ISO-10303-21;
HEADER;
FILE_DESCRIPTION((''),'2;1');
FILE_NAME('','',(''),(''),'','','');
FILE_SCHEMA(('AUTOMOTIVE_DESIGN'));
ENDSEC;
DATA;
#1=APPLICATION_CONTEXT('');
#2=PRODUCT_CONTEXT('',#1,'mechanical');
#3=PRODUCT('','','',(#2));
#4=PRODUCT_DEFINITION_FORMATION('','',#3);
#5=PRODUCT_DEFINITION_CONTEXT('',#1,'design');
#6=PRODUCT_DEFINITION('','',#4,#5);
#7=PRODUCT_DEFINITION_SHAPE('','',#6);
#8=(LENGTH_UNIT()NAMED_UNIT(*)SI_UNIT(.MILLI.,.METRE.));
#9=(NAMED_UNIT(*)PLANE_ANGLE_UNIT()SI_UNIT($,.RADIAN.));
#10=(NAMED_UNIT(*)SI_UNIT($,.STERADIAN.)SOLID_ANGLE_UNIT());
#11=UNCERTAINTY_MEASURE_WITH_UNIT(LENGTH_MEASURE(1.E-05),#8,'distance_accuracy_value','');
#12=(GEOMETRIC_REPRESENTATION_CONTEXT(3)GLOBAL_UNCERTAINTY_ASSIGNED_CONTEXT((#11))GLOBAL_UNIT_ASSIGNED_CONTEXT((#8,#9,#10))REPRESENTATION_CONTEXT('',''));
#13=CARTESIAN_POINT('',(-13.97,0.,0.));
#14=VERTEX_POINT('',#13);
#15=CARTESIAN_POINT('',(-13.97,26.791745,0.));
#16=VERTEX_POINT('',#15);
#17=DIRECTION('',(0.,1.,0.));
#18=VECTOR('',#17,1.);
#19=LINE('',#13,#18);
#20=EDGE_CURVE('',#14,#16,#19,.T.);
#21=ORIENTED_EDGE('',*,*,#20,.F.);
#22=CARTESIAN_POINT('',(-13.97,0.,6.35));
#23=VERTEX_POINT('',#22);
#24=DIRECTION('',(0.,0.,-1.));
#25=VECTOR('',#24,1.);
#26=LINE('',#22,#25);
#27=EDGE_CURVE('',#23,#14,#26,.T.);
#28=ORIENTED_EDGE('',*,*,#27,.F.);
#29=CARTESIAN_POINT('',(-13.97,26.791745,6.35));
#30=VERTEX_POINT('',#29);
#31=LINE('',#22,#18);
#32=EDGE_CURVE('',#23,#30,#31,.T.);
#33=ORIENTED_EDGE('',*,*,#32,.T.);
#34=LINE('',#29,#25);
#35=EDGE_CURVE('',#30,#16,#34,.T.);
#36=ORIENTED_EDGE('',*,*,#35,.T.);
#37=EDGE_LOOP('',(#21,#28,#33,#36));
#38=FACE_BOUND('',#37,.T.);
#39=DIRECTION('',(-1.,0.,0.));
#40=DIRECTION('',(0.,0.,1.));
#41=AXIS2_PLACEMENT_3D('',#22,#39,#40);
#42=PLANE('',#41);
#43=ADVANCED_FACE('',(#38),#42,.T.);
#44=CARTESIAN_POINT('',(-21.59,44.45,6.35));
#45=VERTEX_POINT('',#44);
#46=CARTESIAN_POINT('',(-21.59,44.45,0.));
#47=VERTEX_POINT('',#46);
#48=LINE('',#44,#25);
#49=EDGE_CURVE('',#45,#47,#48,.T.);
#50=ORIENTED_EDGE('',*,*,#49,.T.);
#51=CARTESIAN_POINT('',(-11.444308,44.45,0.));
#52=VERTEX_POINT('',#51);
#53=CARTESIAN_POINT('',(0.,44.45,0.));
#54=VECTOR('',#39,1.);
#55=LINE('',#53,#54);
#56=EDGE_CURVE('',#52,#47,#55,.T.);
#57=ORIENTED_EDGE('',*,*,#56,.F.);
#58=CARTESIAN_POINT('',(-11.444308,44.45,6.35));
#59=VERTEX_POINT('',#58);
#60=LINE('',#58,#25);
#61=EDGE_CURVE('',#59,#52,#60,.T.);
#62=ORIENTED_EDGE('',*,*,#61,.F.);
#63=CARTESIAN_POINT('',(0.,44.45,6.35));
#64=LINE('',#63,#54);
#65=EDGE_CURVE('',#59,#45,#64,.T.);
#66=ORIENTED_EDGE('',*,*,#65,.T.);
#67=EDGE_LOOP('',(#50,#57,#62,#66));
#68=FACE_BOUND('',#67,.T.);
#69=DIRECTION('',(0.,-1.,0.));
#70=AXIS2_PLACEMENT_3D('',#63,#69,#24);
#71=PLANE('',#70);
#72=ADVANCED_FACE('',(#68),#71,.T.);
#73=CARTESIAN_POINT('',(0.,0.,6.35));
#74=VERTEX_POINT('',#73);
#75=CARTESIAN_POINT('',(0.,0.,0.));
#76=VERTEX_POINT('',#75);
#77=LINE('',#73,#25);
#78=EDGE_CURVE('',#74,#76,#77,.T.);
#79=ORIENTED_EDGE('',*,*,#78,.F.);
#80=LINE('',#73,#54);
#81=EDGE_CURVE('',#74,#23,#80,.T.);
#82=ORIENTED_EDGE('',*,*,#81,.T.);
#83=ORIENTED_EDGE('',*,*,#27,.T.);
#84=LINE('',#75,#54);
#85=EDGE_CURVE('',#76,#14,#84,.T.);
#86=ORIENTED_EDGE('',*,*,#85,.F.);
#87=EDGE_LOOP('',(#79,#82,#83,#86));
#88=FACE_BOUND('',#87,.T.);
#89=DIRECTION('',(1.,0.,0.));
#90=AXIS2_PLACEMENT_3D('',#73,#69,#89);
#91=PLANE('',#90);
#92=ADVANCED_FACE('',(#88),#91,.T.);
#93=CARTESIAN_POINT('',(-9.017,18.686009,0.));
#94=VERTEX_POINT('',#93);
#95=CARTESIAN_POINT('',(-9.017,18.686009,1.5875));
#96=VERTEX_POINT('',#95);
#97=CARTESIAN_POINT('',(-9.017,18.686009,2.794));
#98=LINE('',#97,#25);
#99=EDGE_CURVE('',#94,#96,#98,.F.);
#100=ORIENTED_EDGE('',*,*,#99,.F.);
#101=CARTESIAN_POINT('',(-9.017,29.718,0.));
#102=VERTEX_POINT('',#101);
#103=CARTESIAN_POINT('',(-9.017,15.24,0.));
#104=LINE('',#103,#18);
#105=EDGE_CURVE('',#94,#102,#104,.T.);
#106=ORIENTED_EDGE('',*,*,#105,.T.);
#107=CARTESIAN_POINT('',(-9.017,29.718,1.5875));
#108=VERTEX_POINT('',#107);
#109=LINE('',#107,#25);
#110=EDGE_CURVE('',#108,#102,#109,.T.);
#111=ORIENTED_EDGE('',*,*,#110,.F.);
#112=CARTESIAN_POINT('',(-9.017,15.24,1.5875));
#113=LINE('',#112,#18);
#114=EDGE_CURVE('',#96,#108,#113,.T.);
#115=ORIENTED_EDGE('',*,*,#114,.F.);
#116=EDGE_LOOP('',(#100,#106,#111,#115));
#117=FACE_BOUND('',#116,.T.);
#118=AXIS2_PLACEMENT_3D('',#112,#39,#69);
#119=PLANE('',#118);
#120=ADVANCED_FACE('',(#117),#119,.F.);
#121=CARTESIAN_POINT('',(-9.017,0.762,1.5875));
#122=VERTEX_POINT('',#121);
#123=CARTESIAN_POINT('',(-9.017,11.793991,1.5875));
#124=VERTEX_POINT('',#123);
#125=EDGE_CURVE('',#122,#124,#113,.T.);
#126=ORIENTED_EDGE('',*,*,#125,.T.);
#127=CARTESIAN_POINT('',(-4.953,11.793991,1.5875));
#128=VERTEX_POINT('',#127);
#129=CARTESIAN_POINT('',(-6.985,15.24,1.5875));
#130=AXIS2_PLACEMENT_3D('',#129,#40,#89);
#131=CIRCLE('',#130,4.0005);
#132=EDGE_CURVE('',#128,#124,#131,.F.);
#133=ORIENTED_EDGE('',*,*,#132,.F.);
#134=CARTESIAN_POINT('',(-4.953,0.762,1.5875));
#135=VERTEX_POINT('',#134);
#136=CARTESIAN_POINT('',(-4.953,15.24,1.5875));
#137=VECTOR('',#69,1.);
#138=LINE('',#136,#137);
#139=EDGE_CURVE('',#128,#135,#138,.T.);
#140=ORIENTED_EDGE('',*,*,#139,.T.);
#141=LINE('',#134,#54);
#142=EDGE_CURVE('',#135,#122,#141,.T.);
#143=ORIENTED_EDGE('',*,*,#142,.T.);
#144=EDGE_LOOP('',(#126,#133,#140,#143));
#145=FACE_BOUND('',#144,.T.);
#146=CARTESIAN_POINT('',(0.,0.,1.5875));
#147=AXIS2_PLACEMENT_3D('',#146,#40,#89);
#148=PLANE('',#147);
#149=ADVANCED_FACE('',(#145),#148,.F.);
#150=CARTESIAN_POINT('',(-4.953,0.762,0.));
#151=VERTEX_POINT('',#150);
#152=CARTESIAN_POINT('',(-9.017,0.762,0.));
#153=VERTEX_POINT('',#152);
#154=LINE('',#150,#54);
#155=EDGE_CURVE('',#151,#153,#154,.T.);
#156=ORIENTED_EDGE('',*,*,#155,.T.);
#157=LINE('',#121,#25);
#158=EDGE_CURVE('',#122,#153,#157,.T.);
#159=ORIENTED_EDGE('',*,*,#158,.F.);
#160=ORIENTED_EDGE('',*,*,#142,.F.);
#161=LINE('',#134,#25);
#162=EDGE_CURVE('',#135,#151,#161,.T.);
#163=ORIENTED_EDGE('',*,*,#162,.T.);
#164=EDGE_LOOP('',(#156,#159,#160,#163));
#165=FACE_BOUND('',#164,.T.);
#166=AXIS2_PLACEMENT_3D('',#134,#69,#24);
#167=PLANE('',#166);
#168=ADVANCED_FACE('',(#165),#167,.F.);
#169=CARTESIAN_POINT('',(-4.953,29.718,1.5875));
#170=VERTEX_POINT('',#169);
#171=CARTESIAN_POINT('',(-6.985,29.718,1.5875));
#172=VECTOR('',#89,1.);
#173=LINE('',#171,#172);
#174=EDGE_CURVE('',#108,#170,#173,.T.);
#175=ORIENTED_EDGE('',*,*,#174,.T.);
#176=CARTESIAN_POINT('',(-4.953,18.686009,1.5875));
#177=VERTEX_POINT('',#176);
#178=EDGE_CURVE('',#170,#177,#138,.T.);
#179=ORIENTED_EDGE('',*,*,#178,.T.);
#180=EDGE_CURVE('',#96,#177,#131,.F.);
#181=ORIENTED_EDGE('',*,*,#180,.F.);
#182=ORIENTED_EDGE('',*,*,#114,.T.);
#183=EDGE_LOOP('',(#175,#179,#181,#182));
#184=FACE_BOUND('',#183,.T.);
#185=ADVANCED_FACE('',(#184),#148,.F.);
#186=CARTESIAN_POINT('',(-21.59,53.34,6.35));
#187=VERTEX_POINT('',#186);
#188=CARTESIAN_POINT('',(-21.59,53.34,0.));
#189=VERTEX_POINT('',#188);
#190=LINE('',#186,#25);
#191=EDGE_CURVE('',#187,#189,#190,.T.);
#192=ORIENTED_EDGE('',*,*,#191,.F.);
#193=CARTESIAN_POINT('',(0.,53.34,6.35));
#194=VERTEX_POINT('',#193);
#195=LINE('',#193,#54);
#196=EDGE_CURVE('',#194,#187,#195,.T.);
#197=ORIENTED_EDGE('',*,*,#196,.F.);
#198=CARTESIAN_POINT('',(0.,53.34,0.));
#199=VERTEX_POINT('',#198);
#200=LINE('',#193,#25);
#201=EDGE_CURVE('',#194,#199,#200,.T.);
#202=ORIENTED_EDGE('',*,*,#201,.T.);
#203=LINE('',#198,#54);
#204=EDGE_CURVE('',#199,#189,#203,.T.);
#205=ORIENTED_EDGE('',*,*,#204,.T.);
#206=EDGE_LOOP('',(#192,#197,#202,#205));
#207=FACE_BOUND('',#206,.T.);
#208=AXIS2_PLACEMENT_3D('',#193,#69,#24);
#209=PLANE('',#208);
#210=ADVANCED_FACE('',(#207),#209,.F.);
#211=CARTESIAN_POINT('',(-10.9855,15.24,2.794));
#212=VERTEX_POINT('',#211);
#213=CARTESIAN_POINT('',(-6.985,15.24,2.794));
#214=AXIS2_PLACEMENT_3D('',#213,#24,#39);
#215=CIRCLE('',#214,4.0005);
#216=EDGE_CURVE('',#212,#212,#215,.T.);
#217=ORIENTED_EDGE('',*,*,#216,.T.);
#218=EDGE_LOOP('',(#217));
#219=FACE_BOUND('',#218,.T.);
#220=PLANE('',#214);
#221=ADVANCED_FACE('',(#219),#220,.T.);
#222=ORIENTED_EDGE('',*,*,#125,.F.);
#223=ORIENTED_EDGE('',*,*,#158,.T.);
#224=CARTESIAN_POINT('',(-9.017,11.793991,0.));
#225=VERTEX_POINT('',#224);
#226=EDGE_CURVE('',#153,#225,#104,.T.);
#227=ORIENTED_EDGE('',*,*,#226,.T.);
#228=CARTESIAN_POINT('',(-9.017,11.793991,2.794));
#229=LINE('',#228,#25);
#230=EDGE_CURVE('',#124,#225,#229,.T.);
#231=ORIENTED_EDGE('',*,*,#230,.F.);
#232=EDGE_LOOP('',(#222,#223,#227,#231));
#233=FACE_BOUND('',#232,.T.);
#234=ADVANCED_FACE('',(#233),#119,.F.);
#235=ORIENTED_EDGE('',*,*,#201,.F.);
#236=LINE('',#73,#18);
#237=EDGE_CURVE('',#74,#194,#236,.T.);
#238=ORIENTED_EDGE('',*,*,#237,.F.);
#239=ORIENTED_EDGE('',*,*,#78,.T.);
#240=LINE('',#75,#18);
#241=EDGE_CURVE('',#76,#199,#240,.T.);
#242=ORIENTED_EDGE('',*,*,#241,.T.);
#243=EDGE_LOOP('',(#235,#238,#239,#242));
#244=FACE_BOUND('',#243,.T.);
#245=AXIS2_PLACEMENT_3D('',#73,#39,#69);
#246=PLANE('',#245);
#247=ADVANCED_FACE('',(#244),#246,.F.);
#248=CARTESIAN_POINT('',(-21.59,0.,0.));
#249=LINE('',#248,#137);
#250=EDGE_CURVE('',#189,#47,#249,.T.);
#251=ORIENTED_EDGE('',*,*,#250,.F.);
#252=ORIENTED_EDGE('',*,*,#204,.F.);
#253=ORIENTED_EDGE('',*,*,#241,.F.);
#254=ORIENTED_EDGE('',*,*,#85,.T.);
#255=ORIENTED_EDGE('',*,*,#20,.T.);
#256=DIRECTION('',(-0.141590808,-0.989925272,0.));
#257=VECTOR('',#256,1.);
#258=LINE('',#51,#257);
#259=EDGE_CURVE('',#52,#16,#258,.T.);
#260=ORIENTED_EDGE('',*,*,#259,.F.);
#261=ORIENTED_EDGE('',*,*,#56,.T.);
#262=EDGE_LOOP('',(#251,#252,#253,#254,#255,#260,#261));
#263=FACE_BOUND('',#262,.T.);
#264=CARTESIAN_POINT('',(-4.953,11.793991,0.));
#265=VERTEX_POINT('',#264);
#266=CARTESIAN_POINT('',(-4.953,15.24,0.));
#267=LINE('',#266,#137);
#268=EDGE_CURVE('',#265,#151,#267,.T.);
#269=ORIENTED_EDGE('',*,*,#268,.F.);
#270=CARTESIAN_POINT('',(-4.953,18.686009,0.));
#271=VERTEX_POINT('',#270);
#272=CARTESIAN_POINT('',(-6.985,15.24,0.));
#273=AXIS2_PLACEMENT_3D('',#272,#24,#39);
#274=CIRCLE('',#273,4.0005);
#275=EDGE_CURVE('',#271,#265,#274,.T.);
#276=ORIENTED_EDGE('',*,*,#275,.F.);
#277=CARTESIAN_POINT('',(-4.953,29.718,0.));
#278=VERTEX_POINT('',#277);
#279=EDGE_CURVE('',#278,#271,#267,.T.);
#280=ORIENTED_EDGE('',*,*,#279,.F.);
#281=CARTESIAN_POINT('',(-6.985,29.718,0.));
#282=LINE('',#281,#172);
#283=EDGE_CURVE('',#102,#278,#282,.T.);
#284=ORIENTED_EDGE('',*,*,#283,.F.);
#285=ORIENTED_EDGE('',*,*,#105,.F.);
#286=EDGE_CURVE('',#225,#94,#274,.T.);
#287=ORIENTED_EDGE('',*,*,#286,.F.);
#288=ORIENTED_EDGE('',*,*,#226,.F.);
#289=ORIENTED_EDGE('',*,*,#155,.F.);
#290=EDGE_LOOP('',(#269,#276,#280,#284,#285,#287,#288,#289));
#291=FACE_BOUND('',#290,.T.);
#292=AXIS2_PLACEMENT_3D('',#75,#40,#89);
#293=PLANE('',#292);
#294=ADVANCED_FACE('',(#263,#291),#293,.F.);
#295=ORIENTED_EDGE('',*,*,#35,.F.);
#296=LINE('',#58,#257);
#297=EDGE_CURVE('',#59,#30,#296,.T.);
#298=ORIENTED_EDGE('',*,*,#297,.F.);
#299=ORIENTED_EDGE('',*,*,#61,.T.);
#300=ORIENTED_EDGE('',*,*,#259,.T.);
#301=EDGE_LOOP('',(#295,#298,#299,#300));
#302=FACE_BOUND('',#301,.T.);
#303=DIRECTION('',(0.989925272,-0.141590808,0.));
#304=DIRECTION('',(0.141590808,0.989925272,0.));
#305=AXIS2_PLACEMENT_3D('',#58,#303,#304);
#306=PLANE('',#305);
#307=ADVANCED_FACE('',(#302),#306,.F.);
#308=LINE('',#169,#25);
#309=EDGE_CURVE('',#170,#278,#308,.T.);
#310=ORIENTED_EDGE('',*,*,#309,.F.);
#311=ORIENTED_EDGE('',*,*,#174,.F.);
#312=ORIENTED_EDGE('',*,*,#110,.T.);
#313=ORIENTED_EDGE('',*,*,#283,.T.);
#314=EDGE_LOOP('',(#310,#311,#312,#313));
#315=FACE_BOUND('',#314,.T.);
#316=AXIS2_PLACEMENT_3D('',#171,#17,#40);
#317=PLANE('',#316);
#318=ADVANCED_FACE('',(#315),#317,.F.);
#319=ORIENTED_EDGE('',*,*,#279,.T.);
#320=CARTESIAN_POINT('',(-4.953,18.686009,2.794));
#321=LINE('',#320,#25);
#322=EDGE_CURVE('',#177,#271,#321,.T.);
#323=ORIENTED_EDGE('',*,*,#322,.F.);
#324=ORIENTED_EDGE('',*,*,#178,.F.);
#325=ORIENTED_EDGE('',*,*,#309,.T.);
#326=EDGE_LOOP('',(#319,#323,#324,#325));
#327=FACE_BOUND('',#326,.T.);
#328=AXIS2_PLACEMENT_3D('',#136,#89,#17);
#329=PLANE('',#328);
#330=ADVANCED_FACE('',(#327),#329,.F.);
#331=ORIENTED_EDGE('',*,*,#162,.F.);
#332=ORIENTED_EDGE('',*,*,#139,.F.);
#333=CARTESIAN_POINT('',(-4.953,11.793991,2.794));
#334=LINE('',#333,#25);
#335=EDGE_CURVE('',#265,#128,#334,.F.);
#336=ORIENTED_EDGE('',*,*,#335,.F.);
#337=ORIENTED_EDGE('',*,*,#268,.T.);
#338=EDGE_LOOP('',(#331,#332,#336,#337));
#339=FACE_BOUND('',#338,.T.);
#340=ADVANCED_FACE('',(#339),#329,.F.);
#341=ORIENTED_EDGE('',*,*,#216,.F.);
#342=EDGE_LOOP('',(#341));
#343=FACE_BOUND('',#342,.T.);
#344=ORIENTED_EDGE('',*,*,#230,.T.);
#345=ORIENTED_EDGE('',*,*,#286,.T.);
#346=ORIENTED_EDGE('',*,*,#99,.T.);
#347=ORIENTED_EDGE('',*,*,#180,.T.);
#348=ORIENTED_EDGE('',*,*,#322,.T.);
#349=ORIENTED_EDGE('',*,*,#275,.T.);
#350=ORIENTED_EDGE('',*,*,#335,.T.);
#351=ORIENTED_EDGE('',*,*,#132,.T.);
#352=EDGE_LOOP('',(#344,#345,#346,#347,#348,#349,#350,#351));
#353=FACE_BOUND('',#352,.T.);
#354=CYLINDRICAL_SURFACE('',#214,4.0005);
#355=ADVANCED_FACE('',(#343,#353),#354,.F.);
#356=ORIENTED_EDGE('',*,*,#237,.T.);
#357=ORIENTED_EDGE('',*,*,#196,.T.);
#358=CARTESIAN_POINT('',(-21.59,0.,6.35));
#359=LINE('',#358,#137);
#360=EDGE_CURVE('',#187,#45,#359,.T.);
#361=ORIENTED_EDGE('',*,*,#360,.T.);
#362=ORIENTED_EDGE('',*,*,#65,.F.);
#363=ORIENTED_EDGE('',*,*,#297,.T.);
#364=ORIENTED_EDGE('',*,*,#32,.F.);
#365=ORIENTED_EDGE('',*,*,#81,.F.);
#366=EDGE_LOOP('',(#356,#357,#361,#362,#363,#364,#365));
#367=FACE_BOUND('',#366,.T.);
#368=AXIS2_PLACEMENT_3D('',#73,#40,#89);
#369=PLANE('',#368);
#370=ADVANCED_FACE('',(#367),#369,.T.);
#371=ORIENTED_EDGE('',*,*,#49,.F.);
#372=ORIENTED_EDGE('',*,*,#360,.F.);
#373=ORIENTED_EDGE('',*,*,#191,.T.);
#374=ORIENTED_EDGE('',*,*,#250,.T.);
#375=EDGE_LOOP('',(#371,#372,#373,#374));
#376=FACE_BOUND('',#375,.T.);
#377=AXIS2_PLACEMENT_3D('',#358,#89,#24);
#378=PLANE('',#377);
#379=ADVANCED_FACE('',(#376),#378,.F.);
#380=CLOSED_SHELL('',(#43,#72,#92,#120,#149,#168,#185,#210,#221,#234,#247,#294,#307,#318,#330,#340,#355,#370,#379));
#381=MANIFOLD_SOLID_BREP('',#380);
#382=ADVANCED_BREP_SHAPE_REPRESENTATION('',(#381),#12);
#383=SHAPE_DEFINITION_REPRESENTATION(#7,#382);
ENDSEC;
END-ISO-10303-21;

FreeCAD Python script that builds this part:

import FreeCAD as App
import Part
import Sketcher
Q = App.Units.Quantity

doc = App.newDocument("Part")
body = doc.addObject("PartDesign::Body", "Body")

# Sketch on XY plane
sketch1 = body.newObject("Sketcher::SketchObject", "Sketch")
sketch1.AttachmentSupport = (doc.getObject("XY_Plane"), [""])
sketch1.MapMode = "FlatFace"
sketch1.addGeometry([
    Part.LineSegment(App.Vector(-21.59, 53.34, 0), App.Vector(-21.59, 44.45, 0)),  # 0
    Part.LineSegment(App.Vector(-21.59, 44.45, 0), App.Vector(-13.97, 44.45, 0)),  # 1
    Part.LineSegment(App.Vector(-13.97, 44.45, 0), App.Vector(-13.97, 0, 0)),  # 2
    Part.LineSegment(App.Vector(-13.97, 0, 0), App.Vector(0, 0, 0)),  # 3
    Part.LineSegment(App.Vector(0, 0, 0), App.Vector(0, 53.34, 0)),  # 4
    Part.LineSegment(App.Vector(0, 53.34, 0), App.Vector(-21.59, 53.34, 0)),  # 5
], False)
sketch1.addConstraint([
    Sketcher.Constraint("Coincident", 0, 2, 1, 1),
    Sketcher.Constraint("Coincident", 1, 2, 2, 1),
    Sketcher.Constraint("Coincident", 2, 2, 3, 1),
    Sketcher.Constraint("Coincident", 3, 2, 4, 1),
    Sketcher.Constraint("Coincident", 4, 2, 5, 1),
    Sketcher.Constraint("Coincident", 5, 2, 0, 1),
    Sketcher.Constraint("Vertical", 0),
    Sketcher.Constraint("Horizontal", 1),
    Sketcher.Constraint("Vertical", 2),
    Sketcher.Constraint("Horizontal", 3),
    Sketcher.Constraint("Vertical", 4),
    Sketcher.Constraint("Horizontal", 5),
    Sketcher.Constraint("Coincident", 3, 2, -1, 1),
    Sketcher.Constraint("DistanceX", 1, 1, 1, 2, Q("0.3 in")),
    Sketcher.Constraint("DistanceY", 4, 1, 4, 2, Q("2.1 in")),
    Sketcher.Constraint("DistanceX", 3, 1, 3, 2, Q("0.55 in")),
    Sketcher.Constraint("DistanceY", 0, 2, 0, 1, Q("0.35 in")),
])
pad1 = body.newObject("PartDesign::Pad", "Pad")
pad1.Profile = sketch1
pad1.Length = Q("0.25 in")

# Sketch on XY plane
sketch2 = body.newObject("Sketcher::SketchObject", "Sketch001")
sketch2.AttachmentSupport = (doc.getObject("XY_Plane"), [""])
sketch2.MapMode = "FlatFace"
sketch2.addGeometry(Part.Circle(App.Vector(-6.985, 15.24, 0), App.Vector(0, 0, 1), 4.0005), False)
sketch2.addConstraint([
    Sketcher.Constraint("Diameter", 0, Q("0.315 in")),
    Sketcher.Constraint("DistanceY", -1, 1, 0, 3, Q("0.6 in")),
    Sketcher.Constraint("DistanceX", 0, 3, -1, 1, Q("0.275 in")),
])
pocket1 = body.newObject("PartDesign::Pocket", "Pocket")
pocket1.Profile = sketch2
pocket1.Length = Q("0.11 in")
pocket1.Reversed = True

# Sketch on XY plane
sketch3 = body.newObject("Sketcher::SketchObject", "Sketch002")
sketch3.AttachmentSupport = (doc.getObject("XY_Plane"), [""])
sketch3.MapMode = "FlatFace"
sketch3.addGeometry([
    Part.LineSegment(App.Vector(-9.017, 29.718, 0), App.Vector(-4.953, 29.718, 0)),
    Part.LineSegment(App.Vector(-4.953, 29.718, 0), App.Vector(-4.953, 0.762, 0)),
    Part.LineSegment(App.Vector(-4.953, 0.762, 0), App.Vector(-9.017, 0.762, 0)),
    Part.LineSegment(App.Vector(-9.017, 0.762, 0), App.Vector(-9.017, 29.718, 0)),
], False)
sketch3.addConstraint([
    Sketcher.Constraint("Coincident", 0, 2, 1, 1),
    Sketcher.Constraint("Coincident", 1, 2, 2, 1),
    Sketcher.Constraint("Coincident", 2, 2, 3, 1),
    Sketcher.Constraint("Coincident", 3, 2, 0, 1),
    Sketcher.Constraint("Horizontal", 0),
    Sketcher.Constraint("Vertical", 1),
    Sketcher.Constraint("Horizontal", 2),
    Sketcher.Constraint("Vertical", 3),
    Sketcher.Constraint("DistanceX", 0, 1, 0, 2, Q("0.16 in")),
    Sketcher.Constraint("DistanceY", 1, 2, 1, 1, Q("1.14 in")),
    Sketcher.Constraint("DistanceY", -1, 1, 0, 2, Q("1.17 in")),
    Sketcher.Constraint("DistanceX", 0, 2, -1, 1, Q("0.195 in")),
])
pocket2 = body.newObject("PartDesign::Pocket", "Pocket001")
pocket2.Profile = sketch3
pocket2.Length = Q("0.0625 in")
pocket2.Reversed = True

# Sketch on XY plane
sketch4 = body.newObject("Sketcher::SketchObject", "Sketch003")
sketch4.AttachmentSupport = (doc.getObject("XY_Plane"), [""])
sketch4.MapMode = "FlatFace"
sketch4.addGeometry([
    Part.LineSegment(App.Vector(-13.97, 44.45, 0), App.Vector(-11.444308, 44.45, 0)),
    Part.LineSegment(App.Vector(-11.444308, 44.45, 0), App.Vector(-13.97, 26.791745, 0)),
    Part.LineSegment(App.Vector(-13.97, 26.791745, 0), App.Vector(-13.97, 44.45, 0)),
], False)
sketch4.addConstraint([
    Sketcher.Constraint("Coincident", 0, 2, 1, 1),
    Sketcher.Constraint("Coincident", 1, 2, 2, 1),
    Sketcher.Constraint("Coincident", 2, 2, 0, 1),
    Sketcher.Constraint("Horizontal", 0),
    Sketcher.Constraint("Vertical", 2),
    Sketcher.Constraint("DistanceY", -1, 1, 0, 2, Q("1.75 in")),
    Sketcher.Constraint("DistanceX", 1, 2, -1, 1, Q("0.55 in")),
    Sketcher.Constraint("DistanceX", 0, 1, 0, 2, Q("2.525692 mm")),
    Sketcher.Constraint("DistanceY", 2, 1, 2, 2, Q("17.658255 mm")),
])
pocket3 = body.newObject("PartDesign::Pocket", "Pocket002")
pocket3.Profile = sketch4
pocket3.Type = "ThroughAll"
pocket3.Reversed = True

doc.recompute()
